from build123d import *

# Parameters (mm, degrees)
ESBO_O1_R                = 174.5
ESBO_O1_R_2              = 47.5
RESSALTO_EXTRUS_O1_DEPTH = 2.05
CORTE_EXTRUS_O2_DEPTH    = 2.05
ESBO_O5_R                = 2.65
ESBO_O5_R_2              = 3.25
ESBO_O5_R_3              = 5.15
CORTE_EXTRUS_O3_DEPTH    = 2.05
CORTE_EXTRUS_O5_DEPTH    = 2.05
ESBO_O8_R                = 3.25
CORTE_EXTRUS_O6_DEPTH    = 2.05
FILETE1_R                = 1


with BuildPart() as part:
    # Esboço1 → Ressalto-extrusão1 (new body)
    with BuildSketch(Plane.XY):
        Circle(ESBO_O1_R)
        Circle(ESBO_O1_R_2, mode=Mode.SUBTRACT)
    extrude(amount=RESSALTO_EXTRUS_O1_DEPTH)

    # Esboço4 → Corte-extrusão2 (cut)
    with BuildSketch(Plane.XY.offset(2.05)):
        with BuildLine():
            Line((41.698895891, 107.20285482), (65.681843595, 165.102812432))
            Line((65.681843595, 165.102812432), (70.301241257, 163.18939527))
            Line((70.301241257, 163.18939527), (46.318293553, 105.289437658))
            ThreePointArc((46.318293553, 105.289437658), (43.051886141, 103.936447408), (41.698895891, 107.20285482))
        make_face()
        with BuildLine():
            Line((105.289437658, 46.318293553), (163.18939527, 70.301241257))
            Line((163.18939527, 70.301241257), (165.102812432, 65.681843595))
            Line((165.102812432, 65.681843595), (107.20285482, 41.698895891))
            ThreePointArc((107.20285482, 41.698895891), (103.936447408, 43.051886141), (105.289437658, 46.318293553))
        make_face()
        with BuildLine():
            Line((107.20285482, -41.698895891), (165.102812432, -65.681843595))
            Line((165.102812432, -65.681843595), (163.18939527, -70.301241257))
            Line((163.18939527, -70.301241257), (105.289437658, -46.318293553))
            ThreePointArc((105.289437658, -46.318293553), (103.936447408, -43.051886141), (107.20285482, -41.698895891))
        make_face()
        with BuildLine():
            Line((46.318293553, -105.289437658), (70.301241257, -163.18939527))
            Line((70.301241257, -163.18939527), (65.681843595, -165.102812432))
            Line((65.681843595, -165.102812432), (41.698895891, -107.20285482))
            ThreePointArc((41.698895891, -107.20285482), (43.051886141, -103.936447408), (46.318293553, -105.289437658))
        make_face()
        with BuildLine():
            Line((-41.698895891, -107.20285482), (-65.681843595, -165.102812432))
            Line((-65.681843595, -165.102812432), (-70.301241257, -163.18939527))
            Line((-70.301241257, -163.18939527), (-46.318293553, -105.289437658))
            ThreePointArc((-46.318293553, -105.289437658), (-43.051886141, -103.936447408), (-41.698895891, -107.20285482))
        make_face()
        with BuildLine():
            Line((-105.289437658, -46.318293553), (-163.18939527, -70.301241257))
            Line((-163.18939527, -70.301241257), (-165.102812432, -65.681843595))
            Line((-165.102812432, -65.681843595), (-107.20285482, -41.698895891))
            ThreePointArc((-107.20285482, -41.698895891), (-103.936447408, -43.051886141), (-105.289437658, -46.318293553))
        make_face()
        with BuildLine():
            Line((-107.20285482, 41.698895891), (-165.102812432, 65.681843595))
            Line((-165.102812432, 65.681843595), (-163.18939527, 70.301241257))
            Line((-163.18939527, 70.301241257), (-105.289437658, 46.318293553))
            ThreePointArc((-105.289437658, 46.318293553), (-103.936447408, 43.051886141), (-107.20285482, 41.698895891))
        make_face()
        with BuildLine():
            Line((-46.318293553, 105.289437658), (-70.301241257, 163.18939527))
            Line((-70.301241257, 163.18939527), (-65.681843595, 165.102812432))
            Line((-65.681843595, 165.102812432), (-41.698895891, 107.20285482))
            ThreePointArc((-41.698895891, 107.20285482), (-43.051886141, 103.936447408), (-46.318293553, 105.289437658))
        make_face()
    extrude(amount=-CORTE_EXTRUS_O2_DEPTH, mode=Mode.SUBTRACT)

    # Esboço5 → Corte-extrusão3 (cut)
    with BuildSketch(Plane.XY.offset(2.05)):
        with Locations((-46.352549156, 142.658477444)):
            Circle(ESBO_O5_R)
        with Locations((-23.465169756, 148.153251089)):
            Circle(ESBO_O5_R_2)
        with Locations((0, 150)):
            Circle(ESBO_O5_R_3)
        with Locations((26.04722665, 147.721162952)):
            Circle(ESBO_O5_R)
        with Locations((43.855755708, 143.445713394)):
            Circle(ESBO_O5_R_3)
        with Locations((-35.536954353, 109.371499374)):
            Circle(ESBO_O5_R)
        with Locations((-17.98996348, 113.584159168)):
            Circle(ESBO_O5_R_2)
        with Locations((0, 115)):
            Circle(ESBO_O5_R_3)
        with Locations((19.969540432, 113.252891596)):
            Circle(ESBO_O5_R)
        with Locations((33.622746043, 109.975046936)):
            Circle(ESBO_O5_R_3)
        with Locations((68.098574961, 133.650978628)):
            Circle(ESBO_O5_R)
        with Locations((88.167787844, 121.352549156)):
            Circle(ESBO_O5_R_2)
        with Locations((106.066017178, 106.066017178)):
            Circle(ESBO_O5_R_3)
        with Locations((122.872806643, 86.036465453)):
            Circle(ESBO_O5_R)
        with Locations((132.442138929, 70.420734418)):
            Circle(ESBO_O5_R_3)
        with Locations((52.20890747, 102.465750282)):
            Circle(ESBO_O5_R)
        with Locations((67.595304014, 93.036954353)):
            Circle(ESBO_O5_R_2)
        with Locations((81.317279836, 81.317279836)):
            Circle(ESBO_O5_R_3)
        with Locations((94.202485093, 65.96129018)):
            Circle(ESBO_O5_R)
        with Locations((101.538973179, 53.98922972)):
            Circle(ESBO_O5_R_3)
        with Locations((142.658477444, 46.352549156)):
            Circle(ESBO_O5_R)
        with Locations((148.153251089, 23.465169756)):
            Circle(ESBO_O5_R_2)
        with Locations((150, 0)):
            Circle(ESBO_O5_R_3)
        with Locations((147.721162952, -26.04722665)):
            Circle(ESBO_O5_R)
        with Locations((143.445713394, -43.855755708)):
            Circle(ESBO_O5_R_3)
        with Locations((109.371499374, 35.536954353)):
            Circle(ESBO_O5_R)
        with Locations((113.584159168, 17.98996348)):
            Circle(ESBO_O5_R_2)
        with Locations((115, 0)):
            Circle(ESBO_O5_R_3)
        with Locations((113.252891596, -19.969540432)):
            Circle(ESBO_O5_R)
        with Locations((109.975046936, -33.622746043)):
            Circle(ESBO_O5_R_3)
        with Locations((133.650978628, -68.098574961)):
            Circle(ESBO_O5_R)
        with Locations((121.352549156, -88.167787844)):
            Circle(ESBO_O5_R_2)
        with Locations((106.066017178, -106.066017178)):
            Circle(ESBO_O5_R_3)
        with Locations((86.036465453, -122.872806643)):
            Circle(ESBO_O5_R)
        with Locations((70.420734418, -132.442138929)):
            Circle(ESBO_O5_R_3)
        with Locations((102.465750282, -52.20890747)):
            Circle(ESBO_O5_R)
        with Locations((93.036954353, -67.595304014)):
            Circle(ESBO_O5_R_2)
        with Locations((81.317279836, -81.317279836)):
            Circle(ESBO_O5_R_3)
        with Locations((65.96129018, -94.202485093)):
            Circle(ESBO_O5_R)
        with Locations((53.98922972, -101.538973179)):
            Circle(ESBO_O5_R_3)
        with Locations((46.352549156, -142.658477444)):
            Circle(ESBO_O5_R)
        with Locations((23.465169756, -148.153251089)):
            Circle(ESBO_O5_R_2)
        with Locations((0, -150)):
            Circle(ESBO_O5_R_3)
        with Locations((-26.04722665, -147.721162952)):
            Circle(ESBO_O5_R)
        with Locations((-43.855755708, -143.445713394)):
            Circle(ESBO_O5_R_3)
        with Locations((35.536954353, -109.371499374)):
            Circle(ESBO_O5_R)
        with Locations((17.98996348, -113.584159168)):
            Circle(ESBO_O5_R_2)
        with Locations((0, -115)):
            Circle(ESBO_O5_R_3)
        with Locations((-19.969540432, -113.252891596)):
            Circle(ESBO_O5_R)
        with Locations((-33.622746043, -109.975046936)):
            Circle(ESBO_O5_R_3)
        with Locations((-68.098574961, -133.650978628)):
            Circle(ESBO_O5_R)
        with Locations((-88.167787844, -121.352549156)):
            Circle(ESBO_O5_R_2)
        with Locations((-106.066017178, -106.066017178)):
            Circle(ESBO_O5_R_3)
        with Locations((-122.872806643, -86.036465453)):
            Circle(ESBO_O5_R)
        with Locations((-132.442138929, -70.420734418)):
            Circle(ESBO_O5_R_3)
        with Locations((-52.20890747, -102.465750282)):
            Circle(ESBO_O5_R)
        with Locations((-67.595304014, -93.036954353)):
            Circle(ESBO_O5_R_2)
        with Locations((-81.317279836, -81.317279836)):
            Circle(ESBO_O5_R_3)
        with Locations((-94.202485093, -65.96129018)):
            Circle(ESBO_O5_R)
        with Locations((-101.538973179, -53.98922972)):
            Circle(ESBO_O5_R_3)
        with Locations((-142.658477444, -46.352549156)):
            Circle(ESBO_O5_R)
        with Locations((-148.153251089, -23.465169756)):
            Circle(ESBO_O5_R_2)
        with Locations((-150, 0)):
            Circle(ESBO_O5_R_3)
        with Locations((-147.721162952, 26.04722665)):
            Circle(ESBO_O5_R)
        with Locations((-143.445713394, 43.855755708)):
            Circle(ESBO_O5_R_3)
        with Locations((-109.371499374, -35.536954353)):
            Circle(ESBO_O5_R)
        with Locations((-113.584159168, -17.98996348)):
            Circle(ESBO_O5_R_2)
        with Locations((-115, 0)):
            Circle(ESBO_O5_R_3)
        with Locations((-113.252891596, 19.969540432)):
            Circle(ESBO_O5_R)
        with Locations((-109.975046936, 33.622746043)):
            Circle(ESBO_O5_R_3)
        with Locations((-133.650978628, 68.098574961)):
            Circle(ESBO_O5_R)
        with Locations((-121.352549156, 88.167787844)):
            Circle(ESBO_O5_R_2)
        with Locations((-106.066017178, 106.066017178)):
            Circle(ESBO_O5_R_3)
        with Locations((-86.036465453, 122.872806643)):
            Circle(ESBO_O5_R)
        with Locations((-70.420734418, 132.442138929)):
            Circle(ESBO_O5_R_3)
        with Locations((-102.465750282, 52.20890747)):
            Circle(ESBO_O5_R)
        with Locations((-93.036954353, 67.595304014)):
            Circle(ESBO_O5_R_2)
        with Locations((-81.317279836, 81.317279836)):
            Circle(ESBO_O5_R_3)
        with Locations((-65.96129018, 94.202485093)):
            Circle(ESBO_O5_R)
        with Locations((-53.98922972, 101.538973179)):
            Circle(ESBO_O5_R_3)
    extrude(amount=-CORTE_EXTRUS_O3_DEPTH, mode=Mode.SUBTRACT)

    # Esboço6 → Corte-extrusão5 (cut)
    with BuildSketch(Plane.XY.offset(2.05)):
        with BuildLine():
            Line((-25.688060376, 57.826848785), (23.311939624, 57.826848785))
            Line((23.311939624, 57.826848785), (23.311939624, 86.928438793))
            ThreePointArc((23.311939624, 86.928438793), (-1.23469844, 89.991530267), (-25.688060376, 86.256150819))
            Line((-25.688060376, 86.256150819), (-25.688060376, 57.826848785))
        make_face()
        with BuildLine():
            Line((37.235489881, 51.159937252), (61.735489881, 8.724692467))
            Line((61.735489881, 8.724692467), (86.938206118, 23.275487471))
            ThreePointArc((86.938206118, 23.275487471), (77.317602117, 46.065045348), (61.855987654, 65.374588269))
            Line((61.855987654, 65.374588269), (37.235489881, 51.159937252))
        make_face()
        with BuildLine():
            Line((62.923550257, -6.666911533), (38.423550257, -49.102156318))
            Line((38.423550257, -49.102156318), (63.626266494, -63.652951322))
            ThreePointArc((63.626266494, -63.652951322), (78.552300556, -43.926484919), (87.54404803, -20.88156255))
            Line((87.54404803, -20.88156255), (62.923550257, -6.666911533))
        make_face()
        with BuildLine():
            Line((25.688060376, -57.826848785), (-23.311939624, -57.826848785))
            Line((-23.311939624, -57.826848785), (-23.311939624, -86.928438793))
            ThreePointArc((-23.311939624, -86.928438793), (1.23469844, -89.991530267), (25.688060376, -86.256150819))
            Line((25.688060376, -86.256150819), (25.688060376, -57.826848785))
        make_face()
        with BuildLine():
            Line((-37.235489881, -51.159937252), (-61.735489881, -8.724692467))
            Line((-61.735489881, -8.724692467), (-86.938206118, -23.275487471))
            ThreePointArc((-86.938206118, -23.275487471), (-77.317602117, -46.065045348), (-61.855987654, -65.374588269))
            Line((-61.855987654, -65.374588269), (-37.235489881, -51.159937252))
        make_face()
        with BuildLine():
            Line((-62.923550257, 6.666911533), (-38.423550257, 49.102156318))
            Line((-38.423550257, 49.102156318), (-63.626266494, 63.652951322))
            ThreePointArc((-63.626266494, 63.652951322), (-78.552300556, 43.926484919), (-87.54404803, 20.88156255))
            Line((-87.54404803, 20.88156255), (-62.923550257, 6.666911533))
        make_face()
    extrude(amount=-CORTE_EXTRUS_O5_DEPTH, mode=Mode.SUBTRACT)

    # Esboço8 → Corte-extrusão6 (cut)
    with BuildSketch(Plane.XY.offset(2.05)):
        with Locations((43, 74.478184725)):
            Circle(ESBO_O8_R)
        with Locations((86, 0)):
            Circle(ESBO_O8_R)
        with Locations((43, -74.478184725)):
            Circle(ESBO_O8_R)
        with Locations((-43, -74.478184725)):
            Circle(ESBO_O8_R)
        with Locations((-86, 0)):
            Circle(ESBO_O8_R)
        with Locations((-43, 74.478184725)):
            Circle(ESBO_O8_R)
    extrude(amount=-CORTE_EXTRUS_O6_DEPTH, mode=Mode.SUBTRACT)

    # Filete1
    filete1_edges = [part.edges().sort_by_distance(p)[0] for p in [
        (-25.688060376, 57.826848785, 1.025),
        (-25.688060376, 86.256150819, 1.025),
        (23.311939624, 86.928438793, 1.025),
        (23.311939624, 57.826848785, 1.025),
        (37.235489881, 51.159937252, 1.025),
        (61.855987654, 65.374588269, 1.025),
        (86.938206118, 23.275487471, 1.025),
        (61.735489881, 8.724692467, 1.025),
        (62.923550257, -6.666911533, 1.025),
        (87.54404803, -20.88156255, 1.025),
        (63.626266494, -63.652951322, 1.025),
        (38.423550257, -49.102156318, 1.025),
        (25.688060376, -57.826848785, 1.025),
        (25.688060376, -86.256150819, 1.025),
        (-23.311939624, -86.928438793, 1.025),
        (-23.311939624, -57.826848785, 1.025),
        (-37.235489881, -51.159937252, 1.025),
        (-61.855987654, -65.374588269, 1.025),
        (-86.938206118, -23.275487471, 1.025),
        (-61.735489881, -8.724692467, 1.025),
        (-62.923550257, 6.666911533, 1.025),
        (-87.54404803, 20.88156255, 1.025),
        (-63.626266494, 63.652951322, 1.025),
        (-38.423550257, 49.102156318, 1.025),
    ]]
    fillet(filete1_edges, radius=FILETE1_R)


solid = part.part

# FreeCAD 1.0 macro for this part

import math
import FreeCAD as App
import Part
import Sketcher
Q = App.Units.Quantity


def edges_at(feature, points):
    """Names of the edges that pass closest to the given points."""
    edges = feature.Shape.Edges
    near = lambda p: min(range(len(edges)), key=lambda i: edges[i].distToShape(Part.Vertex(*p))[0])
    return sorted({f"Edge{near(p) + 1}" for p in points})

doc = App.newDocument("Part")
body = doc.addObject("PartDesign::Body", "Body")

sketch1 = body.newObject("Sketcher::SketchObject", "Sketch")
sketch1.AttachmentSupport = (doc.getObject("XY_Plane"), [""])
sketch1.MapMode = "FlatFace"
sketch1.addGeometry(Part.Circle(App.Vector(0, 0, 0), App.Vector(0, 0, 1), 174), False)
sketch1.addGeometry(Part.Circle(App.Vector(0, 0, 0), App.Vector(0, 0, 1), 48), False)
sketch1.addConstraint(Sketcher.Constraint("Coincident", 0, 3, -1, 1))
sketch1.addConstraint(Sketcher.Constraint("Coincident", 1, 3, -1, 1))
sketch1.addConstraint(Sketcher.Constraint("Diameter", 0, 349.0))
sketch1.addConstraint(Sketcher.Constraint("Diameter", 1, 95.0))
pad1 = body.newObject("PartDesign::Pad", "Pad")
pad1.Profile = sketch1
pad1.Length = 2.05

sketch2 = body.newObject("Sketcher::SketchObject", "Sketch001")
sketch2.AttachmentSupport = (doc.getObject("XY_Plane"), [""])
sketch2.MapMode = "FlatFace"
sketch2.AttachmentOffset = App.Placement(App.Vector(0, 0, 2.05), App.Rotation())
sketch2.addGeometry(Part.LineSegment(App.Vector(65.7, 165.1, 0), App.Vector(41.7, 107.2, 0)), False)
sketch2.addGeometry(Part.ArcOfCircle(Part.Circle(App.Vector(44, 106.2, 0), App.Vector(0, 0, 1), 2.5), math.radians(157), math.radians(337)), False)
sketch2.addGeometry(Part.LineSegment(App.Vector(46.3, 105.3, 0), App.Vector(70.3, 163.2, 0)), False)
sketch2.addGeometry(Part.LineSegment(App.Vector(70.3, 163.2, 0), App.Vector(65.7, 165.1, 0)), False)
sketch2.addGeometry(Part.LineSegment(App.Vector(163.2, 70.3, 0), App.Vector(105.3, 46.3, 0)), False)
sketch2.addGeometry(Part.ArcOfCircle(Part.Circle(App.Vector(106.2, 44, 0), App.Vector(0, 0, 1), 2.5), math.radians(113), math.radians(293)), False)
sketch2.addGeometry(Part.LineSegment(App.Vector(107.2, 41.7, 0), App.Vector(165.1, 65.7, 0)), False)
sketch2.addGeometry(Part.LineSegment(App.Vector(165.1, 65.7, 0), App.Vector(163.2, 70.3, 0)), False)
sketch2.addGeometry(Part.LineSegment(App.Vector(165.1, -65.7, 0), App.Vector(107.2, -41.7, 0)), False)
sketch2.addGeometry(Part.ArcOfCircle(Part.Circle(App.Vector(106.2, -44, 0), App.Vector(0, 0, 1), 2.5), math.radians(67), math.radians(247)), False)
sketch2.addGeometry(Part.LineSegment(App.Vector(105.3, -46.3, 0), App.Vector(163.2, -70.3, 0)), False)
sketch2.addGeometry(Part.LineSegment(App.Vector(163.2, -70.3, 0), App.Vector(165.1, -65.7, 0)), False)
sketch2.addGeometry(Part.LineSegment(App.Vector(70.3, -163.2, 0), App.Vector(46.3, -105.3, 0)), False)
sketch2.addGeometry(Part.ArcOfCircle(Part.Circle(App.Vector(44, -106.2, 0), App.Vector(0, 0, 1), 2.5), math.radians(23), math.radians(203)), False)
sketch2.addGeometry(Part.LineSegment(App.Vector(41.7, -107.2, 0), App.Vector(65.7, -165.1, 0)), False)
sketch2.addGeometry(Part.LineSegment(App.Vector(65.7, -165.1, 0), App.Vector(70.3, -163.2, 0)), False)
sketch2.addGeometry(Part.LineSegment(App.Vector(-65.7, -165.1, 0), App.Vector(-41.7, -107.2, 0)), False)
sketch2.addGeometry(Part.ArcOfCircle(Part.Circle(App.Vector(-44, -106.2, 0), App.Vector(0, 0, 1), 2.5), math.radians(-23), math.radians(157)), False)
sketch2.addGeometry(Part.LineSegment(App.Vector(-46.3, -105.3, 0), App.Vector(-70.3, -163.2, 0)), False)
sketch2.addGeometry(Part.LineSegment(App.Vector(-70.3, -163.2, 0), App.Vector(-65.7, -165.1, 0)), False)
sketch2.addGeometry(Part.LineSegment(App.Vector(-163.2, -70.3, 0), App.Vector(-105.3, -46.3, 0)), False)
sketch2.addGeometry(Part.ArcOfCircle(Part.Circle(App.Vector(-106.2, -44, 0), App.Vector(0, 0, 1), 2.5), math.radians(-67), math.radians(113)), False)
sketch2.addGeometry(Part.LineSegment(App.Vector(-107.2, -41.7, 0), App.Vector(-165.1, -65.7, 0)), False)
sketch2.addGeometry(Part.LineSegment(App.Vector(-165.1, -65.7, 0), App.Vector(-163.2, -70.3, 0)), False)
sketch2.addGeometry(Part.LineSegment(App.Vector(-165.1, 65.7, 0), App.Vector(-107.2, 41.7, 0)), False)
sketch2.addGeometry(Part.ArcOfCircle(Part.Circle(App.Vector(-106.2, 44, 0), App.Vector(0, 0, 1), 2.5), math.radians(-113), math.radians(67)), False)
sketch2.addGeometry(Part.LineSegment(App.Vector(-105.3, 46.3, 0), App.Vector(-163.2, 70.3, 0)), False)
sketch2.addGeometry(Part.LineSegment(App.Vector(-163.2, 70.3, 0), App.Vector(-165.1, 65.7, 0)), False)
sketch2.addGeometry(Part.LineSegment(App.Vector(-70.3, 163.2, 0), App.Vector(-46.3, 105.3, 0)), False)
sketch2.addGeometry(Part.ArcOfCircle(Part.Circle(App.Vector(-44, 106.2, 0), App.Vector(0, 0, 1), 2.5), math.radians(-157), math.radians(23)), False)
sketch2.addGeometry(Part.LineSegment(App.Vector(-41.7, 107.2, 0), App.Vector(-65.7, 165.1, 0)), False)
sketch2.addGeometry(Part.LineSegment(App.Vector(-65.7, 165.1, 0), App.Vector(-70.3, 163.2, 0)), False)
sketch2.addConstraint(Sketcher.Constraint("Tangent", 0, 2, 1, 1))
sketch2.addConstraint(Sketcher.Constraint("Tangent", 1, 2, 2, 1))
sketch2.addConstraint(Sketcher.Constraint("Coincident", 2, 2, 3, 1))
sketch2.addConstraint(Sketcher.Constraint("Coincident", 3, 2, 0, 1))
sketch2.addConstraint(Sketcher.Constraint("Tangent", 4, 2, 5, 1))
sketch2.addConstraint(Sketcher.Constraint("Tangent", 5, 2, 6, 1))
sketch2.addConstraint(Sketcher.Constraint("Coincident", 6, 2, 7, 1))
sketch2.addConstraint(Sketcher.Constraint("Coincident", 7, 2, 4, 1))
sketch2.addConstraint(Sketcher.Constraint("Tangent", 8, 2, 9, 1))
sketch2.addConstraint(Sketcher.Constraint("Tangent", 9, 2, 10, 1))
sketch2.addConstraint(Sketcher.Constraint("Coincident", 10, 2, 11, 1))
sketch2.addConstraint(Sketcher.Constraint("Coincident", 11, 2, 8, 1))
sketch2.addConstraint(Sketcher.Constraint("Tangent", 12, 2, 13, 1))
sketch2.addConstraint(Sketcher.Constraint("Tangent", 13, 2, 14, 1))
sketch2.addConstraint(Sketcher.Constraint("Coincident", 14, 2, 15, 1))
sketch2.addConstraint(Sketcher.Constraint("Coincident", 15, 2, 12, 1))
sketch2.addConstraint(Sketcher.Constraint("Tangent", 16, 2, 17, 1))
sketch2.addConstraint(Sketcher.Constraint("Tangent", 17, 2, 18, 1))
sketch2.addConstraint(Sketcher.Constraint("Coincident", 18, 2, 19, 1))
sketch2.addConstraint(Sketcher.Constraint("Coincident", 19, 2, 16, 1))
sketch2.addConstraint(Sketcher.Constraint("Tangent", 20, 2, 21, 1))
sketch2.addConstraint(Sketcher.Constraint("Tangent", 21, 2, 22, 1))
sketch2.addConstraint(Sketcher.Constraint("Coincident", 22, 2, 23, 1))
sketch2.addConstraint(Sketcher.Constraint("Coincident", 23, 2, 20, 1))
sketch2.addConstraint(Sketcher.Constraint("Tangent", 24, 2, 25, 1))
sketch2.addConstraint(Sketcher.Constraint("Tangent", 25, 2, 26, 1))
sketch2.addConstraint(Sketcher.Constraint("Coincident", 26, 2, 27, 1))
sketch2.addConstraint(Sketcher.Constraint("Coincident", 27, 2, 24, 1))
sketch2.addConstraint(Sketcher.Constraint("Tangent", 28, 2, 29, 1))
sketch2.addConstraint(Sketcher.Constraint("Tangent", 29, 2, 30, 1))
sketch2.addConstraint(Sketcher.Constraint("Coincident", 30, 2, 31, 1))
sketch2.addConstraint(Sketcher.Constraint("Coincident", 31, 2, 28, 1))
sketch2.addConstraint(Sketcher.Constraint("Equal", 1, 5))
sketch2.addConstraint(Sketcher.Constraint("Equal", 5, 9))
sketch2.addConstraint(Sketcher.Constraint("Equal", 9, 13))
sketch2.addConstraint(Sketcher.Constraint("Equal", 13, 17))
sketch2.addConstraint(Sketcher.Constraint("Equal", 17, 21))
sketch2.addConstraint(Sketcher.Constraint("Equal", 21, 25))
sketch2.addConstraint(Sketcher.Constraint("Equal", 25, 29))
sketch2.addConstraint(Sketcher.Constraint("Symmetric", 1, 3, 17, 3, -1, 1))
sketch2.addConstraint(Sketcher.Constraint("Symmetric", 5, 3, 21, 3, -1, 1))
sketch2.addConstraint(Sketcher.Constraint("Symmetric", 9, 3, 25, 3, -1, 1))
sketch2.addConstraint(Sketcher.Constraint("Symmetric", 13, 3, 29, 3, -1, 1))
sketch2.addConstraint(Sketcher.Constraint("Symmetric", 2, 2, 18, 2, -1, 1))
sketch2.addConstraint(Sketcher.Constraint("Symmetric", 3, 2, 19, 2, -1, 1))
sketch2.addConstraint(Sketcher.Constraint("Symmetric", 6, 2, 22, 2, -1, 1))
sketch2.addConstraint(Sketcher.Constraint("Symmetric", 7, 2, 23, 2, -1, 1))
sketch2.addConstraint(Sketcher.Constraint("Symmetric", 10, 2, 26, 2, -1, 1))
sketch2.addConstraint(Sketcher.Constraint("Symmetric", 11, 2, 27, 2, -1, 1))
sketch2.addConstraint(Sketcher.Constraint("Symmetric", 14, 2, 30, 2, -1, 1))
sketch2.addConstraint(Sketcher.Constraint("Symmetric", 15, 2, 31, 2, -1, 1))
sketch2.addConstraint(Sketcher.Constraint("Symmetric", 13, 3, 17, 3, -2))
sketch2.addConstraint(Sketcher.Constraint("Symmetric", 9, 3, 21, 3, -2))
sketch2.addConstraint(Sketcher.Constraint("Symmetric", 15, 2, 18, 2, -2))
sketch2.addConstraint(Sketcher.Constraint("Symmetric", 14, 2, 19, 2, -2))
sketch2.addConstraint(Sketcher.Constraint("Symmetric", 11, 2, 22, 2, -2))
sketch2.addConstraint(Sketcher.Constraint("Symmetric", 10, 2, 23, 2, -2))
sketch2.addConstraint(Sketcher.Constraint("Parallel", 0, 2))
sketch2.addConstraint(Sketcher.Constraint("Perpendicular", 2, 3))
sketch2.addConstraint(Sketcher.Constraint("Parallel", 4, 6))
sketch2.addConstraint(Sketcher.Constraint("Perpendicular", 6, 7))
sketch2.addConstraint(Sketcher.Constraint("Parallel", 3, 8))
sketch2.addConstraint(Sketcher.Constraint("Equal", 2, 4))
sketch2.addConstraint(Sketcher.Constraint("Radius", 1, 2.5))
sketch2.addConstraint(Sketcher.Constraint("Angle", 0, Q("-112.5 deg")))
sketch2.addConstraint(Sketcher.Constraint("DistanceY", 5, 3, 2, 2, 119.180801))
sketch2.addConstraint(Sketcher.Constraint("DistanceX", 1, 2, 7, 2, 116.871102))
sketch2.addConstraint(Sketcher.Constraint("DistanceX", -1, 1, 2, 2, 70.301241))
sketch2.addConstraint(Sketcher.Constraint("DistanceY", -1, 1, 7, 2, 70.301241))
sketch2.addConstraint(Sketcher.Constraint("DistanceX", 1, 3, 5, 3, 62.237552))
pocket1 = body.newObject("PartDesign::Pocket", "Pocket")
pocket1.Profile = sketch2
pocket1.Length = 2.05

sketch3 = body.newObject("Sketcher::SketchObject", "Sketch002")
sketch3.AttachmentSupport = (doc.getObject("XY_Plane"), [""])
sketch3.MapMode = "FlatFace"
sketch3.AttachmentOffset = App.Placement(App.Vector(0, 0, 2.05), App.Rotation())
sketch3.addGeometry(Part.Circle(App.Vector(-46.4, 142.7, 0), App.Vector(0, 0, 1), 2.6), False)
sketch3.addGeometry(Part.Circle(App.Vector(-23.5, 148.2, 0), App.Vector(0, 0, 1), 3.2), False)
sketch3.addGeometry(Part.Circle(App.Vector(0, 150, 0), App.Vector(0, 0, 1), 5.2), False)
sketch3.addGeometry(Part.Circle(App.Vector(26, 147.7, 0), App.Vector(0, 0, 1), 2.6), False)
sketch3.addGeometry(Part.Circle(App.Vector(43.9, 143.4, 0), App.Vector(0, 0, 1), 5.2), False)
sketch3.addGeometry(Part.Circle(App.Vector(-35.5, 109.4, 0), App.Vector(0, 0, 1), 2.6), False)
sketch3.addGeometry(Part.Circle(App.Vector(-18, 113.6, 0), App.Vector(0, 0, 1), 3.2), False)
sketch3.addGeometry(Part.Circle(App.Vector(0, 115, 0), App.Vector(0, 0, 1), 5.2), False)
sketch3.addGeometry(Part.Circle(App.Vector(20, 113.3, 0), App.Vector(0, 0, 1), 2.6), False)
sketch3.addGeometry(Part.Circle(App.Vector(33.6, 110, 0), App.Vector(0, 0, 1), 5.2), False)
sketch3.addGeometry(Part.Circle(App.Vector(68.1, 133.7, 0), App.Vector(0, 0, 1), 2.6), False)
sketch3.addGeometry(Part.Circle(App.Vector(88.2, 121.4, 0), App.Vector(0, 0, 1), 3.2), False)
sketch3.addGeometry(Part.Circle(App.Vector(106.1, 106.1, 0), App.Vector(0, 0, 1), 5.2), False)
sketch3.addGeometry(Part.Circle(App.Vector(122.9, 86, 0), App.Vector(0, 0, 1), 2.6), False)
sketch3.addGeometry(Part.Circle(App.Vector(132.4, 70.4, 0), App.Vector(0, 0, 1), 5.2), False)
sketch3.addGeometry(Part.Circle(App.Vector(52.2, 102.5, 0), App.Vector(0, 0, 1), 2.6), False)
sketch3.addGeometry(Part.Circle(App.Vector(67.6, 93, 0), App.Vector(0, 0, 1), 3.2), False)
sketch3.addGeometry(Part.Circle(App.Vector(81.3, 81.3, 0), App.Vector(0, 0, 1), 5.2), False)
sketch3.addGeometry(Part.Circle(App.Vector(94.2, 66, 0), App.Vector(0, 0, 1), 2.6), False)
sketch3.addGeometry(Part.Circle(App.Vector(101.5, 54, 0), App.Vector(0, 0, 1), 5.2), False)
sketch3.addGeometry(Part.Circle(App.Vector(142.7, 46.4, 0), App.Vector(0, 0, 1), 2.6), False)
sketch3.addGeometry(Part.Circle(App.Vector(148.2, 23.5, 0), App.Vector(0, 0, 1), 3.2), False)
sketch3.addGeometry(Part.Circle(App.Vector(150, 0, 0), App.Vector(0, 0, 1), 5.2), False)
sketch3.addGeometry(Part.Circle(App.Vector(147.7, -26, 0), App.Vector(0, 0, 1), 2.6), False)
sketch3.addGeometry(Part.Circle(App.Vector(143.4, -43.9, 0), App.Vector(0, 0, 1), 5.2), False)
sketch3.addGeometry(Part.Circle(App.Vector(109.4, 35.5, 0), App.Vector(0, 0, 1), 2.6), False)
sketch3.addGeometry(Part.Circle(App.Vector(113.6, 18, 0), App.Vector(0, 0, 1), 3.2), False)
sketch3.addGeometry(Part.Circle(App.Vector(115, 0, 0), App.Vector(0, 0, 1), 5.2), False)
sketch3.addGeometry(Part.Circle(App.Vector(113.3, -20, 0), App.Vector(0, 0, 1), 2.6), False)
sketch3.addGeometry(Part.Circle(App.Vector(110, -33.6, 0), App.Vector(0, 0, 1), 5.2), False)
sketch3.addGeometry(Part.Circle(App.Vector(133.7, -68.1, 0), App.Vector(0, 0, 1), 2.6), False)
sketch3.addGeometry(Part.Circle(App.Vector(121.4, -88.2, 0), App.Vector(0, 0, 1), 3.2), False)
sketch3.addGeometry(Part.Circle(App.Vector(106.1, -106.1, 0), App.Vector(0, 0, 1), 5.2), False)
sketch3.addGeometry(Part.Circle(App.Vector(86, -122.9, 0), App.Vector(0, 0, 1), 2.6), False)
sketch3.addGeometry(Part.Circle(App.Vector(70.4, -132.4, 0), App.Vector(0, 0, 1), 5.2), False)
sketch3.addGeometry(Part.Circle(App.Vector(102.5, -52.2, 0), App.Vector(0, 0, 1), 2.6), False)
sketch3.addGeometry(Part.Circle(App.Vector(93, -67.6, 0), App.Vector(0, 0, 1), 3.2), False)
sketch3.addGeometry(Part.Circle(App.Vector(81.3, -81.3, 0), App.Vector(0, 0, 1), 5.2), False)
sketch3.addGeometry(Part.Circle(App.Vector(66, -94.2, 0), App.Vector(0, 0, 1), 2.6), False)
sketch3.addGeometry(Part.Circle(App.Vector(54, -101.5, 0), App.Vector(0, 0, 1), 5.2), False)
sketch3.addGeometry(Part.Circle(App.Vector(46.4, -142.7, 0), App.Vector(0, 0, 1), 2.6), False)
sketch3.addGeometry(Part.Circle(App.Vector(23.5, -148.2, 0), App.Vector(0, 0, 1), 3.2), False)
sketch3.addGeometry(Part.Circle(App.Vector(0, -150, 0), App.Vector(0, 0, 1), 5.2), False)
sketch3.addGeometry(Part.Circle(App.Vector(-26, -147.7, 0), App.Vector(0, 0, 1), 2.6), False)
sketch3.addGeometry(Part.Circle(App.Vector(-43.9, -143.4, 0), App.Vector(0, 0, 1), 5.2), False)
sketch3.addGeometry(Part.Circle(App.Vector(35.5, -109.4, 0), App.Vector(0, 0, 1), 2.6), False)
sketch3.addGeometry(Part.Circle(App.Vector(18, -113.6, 0), App.Vector(0, 0, 1), 3.2), False)
sketch3.addGeometry(Part.Circle(App.Vector(0, -115, 0), App.Vector(0, 0, 1), 5.2), False)
sketch3.addGeometry(Part.Circle(App.Vector(-20, -113.3, 0), App.Vector(0, 0, 1), 2.6), False)
sketch3.addGeometry(Part.Circle(App.Vector(-33.6, -110, 0), App.Vector(0, 0, 1), 5.2), False)
sketch3.addGeometry(Part.Circle(App.Vector(-68.1, -133.7, 0), App.Vector(0, 0, 1), 2.6), False)
sketch3.addGeometry(Part.Circle(App.Vector(-88.2, -121.4, 0), App.Vector(0, 0, 1), 3.2), False)
sketch3.addGeometry(Part.Circle(App.Vector(-106.1, -106.1, 0), App.Vector(0, 0, 1), 5.2), False)
sketch3.addGeometry(Part.Circle(App.Vector(-122.9, -86, 0), App.Vector(0, 0, 1), 2.6), False)
sketch3.addGeometry(Part.Circle(App.Vector(-132.4, -70.4, 0), App.Vector(0, 0, 1), 5.2), False)
sketch3.addGeometry(Part.Circle(App.Vector(-52.2, -102.5, 0), App.Vector(0, 0, 1), 2.6), False)
sketch3.addGeometry(Part.Circle(App.Vector(-67.6, -93, 0), App.Vector(0, 0, 1), 3.2), False)
sketch3.addGeometry(Part.Circle(App.Vector(-81.3, -81.3, 0), App.Vector(0, 0, 1), 5.2), False)
sketch3.addGeometry(Part.Circle(App.Vector(-94.2, -66, 0), App.Vector(0, 0, 1), 2.6), False)
sketch3.addGeometry(Part.Circle(App.Vector(-101.5, -54, 0), App.Vector(0, 0, 1), 5.2), False)
sketch3.addGeometry(Part.Circle(App.Vector(-142.7, -46.4, 0), App.Vector(0, 0, 1), 2.6), False)
sketch3.addGeometry(Part.Circle(App.Vector(-148.2, -23.5, 0), App.Vector(0, 0, 1), 3.2), False)
sketch3.addGeometry(Part.Circle(App.Vector(-150, 0, 0), App.Vector(0, 0, 1), 5.2), False)
sketch3.addGeometry(Part.Circle(App.Vector(-147.7, 26, 0), App.Vector(0, 0, 1), 2.6), False)
sketch3.addGeometry(Part.Circle(App.Vector(-143.4, 43.9, 0), App.Vector(0, 0, 1), 5.2), False)
sketch3.addGeometry(Part.Circle(App.Vector(-109.4, -35.5, 0), App.Vector(0, 0, 1), 2.6), False)
sketch3.addGeometry(Part.Circle(App.Vector(-113.6, -18, 0), App.Vector(0, 0, 1), 3.2), False)
sketch3.addGeometry(Part.Circle(App.Vector(-115, 0, 0), App.Vector(0, 0, 1), 5.2), False)
sketch3.addGeometry(Part.Circle(App.Vector(-113.3, 20, 0), App.Vector(0, 0, 1), 2.6), False)
sketch3.addGeometry(Part.Circle(App.Vector(-110, 33.6, 0), App.Vector(0, 0, 1), 5.2), False)
sketch3.addGeometry(Part.Circle(App.Vector(-133.7, 68.1, 0), App.Vector(0, 0, 1), 2.6), False)
sketch3.addGeometry(Part.Circle(App.Vector(-121.4, 88.2, 0), App.Vector(0, 0, 1), 3.2), False)
sketch3.addGeometry(Part.Circle(App.Vector(-106.1, 106.1, 0), App.Vector(0, 0, 1), 5.2), False)
sketch3.addGeometry(Part.Circle(App.Vector(-86, 122.9, 0), App.Vector(0, 0, 1), 2.6), False)
sketch3.addGeometry(Part.Circle(App.Vector(-70.4, 132.4, 0), App.Vector(0, 0, 1), 5.2), False)
sketch3.addGeometry(Part.Circle(App.Vector(-102.5, 52.2, 0), App.Vector(0, 0, 1), 2.6), False)
sketch3.addGeometry(Part.Circle(App.Vector(-93, 67.6, 0), App.Vector(0, 0, 1), 3.2), False)
sketch3.addGeometry(Part.Circle(App.Vector(-81.3, 81.3, 0), App.Vector(0, 0, 1), 5.2), False)
sketch3.addGeometry(Part.Circle(App.Vector(-66, 94.2, 0), App.Vector(0, 0, 1), 2.6), False)
sketch3.addGeometry(Part.Circle(App.Vector(-54, 101.5, 0), App.Vector(0, 0, 1), 5.2), False)
sketch3.addConstraint(Sketcher.Constraint("Equal", 0, 3))
sketch3.addConstraint(Sketcher.Constraint("Equal", 2, 4))
sketch3.addConstraint(Sketcher.Constraint("Equal", 3, 5))
sketch3.addConstraint(Sketcher.Constraint("Equal", 1, 6))
sketch3.addConstraint(Sketcher.Constraint("Equal", 4, 7))
sketch3.addConstraint(Sketcher.Constraint("Equal", 5, 8))
sketch3.addConstraint(Sketcher.Constraint("Equal", 7, 9))
sketch3.addConstraint(Sketcher.Constraint("Equal", 8, 10))
sketch3.addConstraint(Sketcher.Constraint("Equal", 6, 11))
sketch3.addConstraint(Sketcher.Constraint("Equal", 9, 12))
sketch3.addConstraint(Sketcher.Constraint("Equal", 10, 13))
sketch3.addConstraint(Sketcher.Constraint("Equal", 12, 14))
sketch3.addConstraint(Sketcher.Constraint("Equal", 13, 15))
sketch3.addConstraint(Sketcher.Constraint("Equal", 11, 16))
sketch3.addConstraint(Sketcher.Constraint("Equal", 14, 17))
sketch3.addConstraint(Sketcher.Constraint("Equal", 15, 18))
sketch3.addConstraint(Sketcher.Constraint("Equal", 17, 19))
sketch3.addConstraint(Sketcher.Constraint("Equal", 18, 20))
sketch3.addConstraint(Sketcher.Constraint("Equal", 16, 21))
sketch3.addConstraint(Sketcher.Constraint("Equal", 19, 22))
sketch3.addConstraint(Sketcher.Constraint("Equal", 20, 23))
sketch3.addConstraint(Sketcher.Constraint("Equal", 22, 24))
sketch3.addConstraint(Sketcher.Constraint("Equal", 23, 25))
sketch3.addConstraint(Sketcher.Constraint("Equal", 21, 26))
sketch3.addConstraint(Sketcher.Constraint("Equal", 24, 27))
sketch3.addConstraint(Sketcher.Constraint("Equal", 25, 28))
sketch3.addConstraint(Sketcher.Constraint("Equal", 27, 29))
sketch3.addConstraint(Sketcher.Constraint("Equal", 28, 30))
sketch3.addConstraint(Sketcher.Constraint("Equal", 26, 31))
sketch3.addConstraint(Sketcher.Constraint("Equal", 29, 32))
sketch3.addConstraint(Sketcher.Constraint("Equal", 30, 33))
sketch3.addConstraint(Sketcher.Constraint("Equal", 32, 34))
sketch3.addConstraint(Sketcher.Constraint("Equal", 33, 35))
sketch3.addConstraint(Sketcher.Constraint("Equal", 31, 36))
sketch3.addConstraint(Sketcher.Constraint("Equal", 34, 37))
sketch3.addConstraint(Sketcher.Constraint("Equal", 35, 38))
sketch3.addConstraint(Sketcher.Constraint("Equal", 37, 39))
sketch3.addConstraint(Sketcher.Constraint("Equal", 38, 40))
sketch3.addConstraint(Sketcher.Constraint("Equal", 36, 41))
sketch3.addConstraint(Sketcher.Constraint("Equal", 39, 42))
sketch3.addConstraint(Sketcher.Constraint("Equal", 40, 43))
sketch3.addConstraint(Sketcher.Constraint("Equal", 42, 44))
sketch3.addConstraint(Sketcher.Constraint("Equal", 43, 45))
sketch3.addConstraint(Sketcher.Constraint("Equal", 41, 46))
sketch3.addConstraint(Sketcher.Constraint("Equal", 44, 47))
sketch3.addConstraint(Sketcher.Constraint("Equal", 45, 48))
sketch3.addConstraint(Sketcher.Constraint("Equal", 47, 49))
sketch3.addConstraint(Sketcher.Constraint("Equal", 48, 50))
sketch3.addConstraint(Sketcher.Constraint("Equal", 46, 51))
sketch3.addConstraint(Sketcher.Constraint("Equal", 49, 52))
sketch3.addConstraint(Sketcher.Constraint("Equal", 50, 53))
sketch3.addConstraint(Sketcher.Constraint("Equal", 52, 54))
sketch3.addConstraint(Sketcher.Constraint("Equal", 53, 55))
sketch3.addConstraint(Sketcher.Constraint("Equal", 51, 56))
sketch3.addConstraint(Sketcher.Constraint("Equal", 54, 57))
sketch3.addConstraint(Sketcher.Constraint("Equal", 55, 58))
sketch3.addConstraint(Sketcher.Constraint("Equal", 57, 59))
sketch3.addConstraint(Sketcher.Constraint("Equal", 58, 60))
sketch3.addConstraint(Sketcher.Constraint("Equal", 56, 61))
sketch3.addConstraint(Sketcher.Constraint("Equal", 59, 62))
sketch3.addConstraint(Sketcher.Constraint("Equal", 60, 63))
sketch3.addConstraint(Sketcher.Constraint("Equal", 62, 64))
sketch3.addConstraint(Sketcher.Constraint("Equal", 63, 65))
sketch3.addConstraint(Sketcher.Constraint("Equal", 61, 66))
sketch3.addConstraint(Sketcher.Constraint("Equal", 64, 67))
sketch3.addConstraint(Sketcher.Constraint("Equal", 65, 68))
sketch3.addConstraint(Sketcher.Constraint("Equal", 67, 69))
sketch3.addConstraint(Sketcher.Constraint("Equal", 68, 70))
sketch3.addConstraint(Sketcher.Constraint("Equal", 66, 71))
sketch3.addConstraint(Sketcher.Constraint("Equal", 69, 72))
sketch3.addConstraint(Sketcher.Constraint("Equal", 70, 73))
sketch3.addConstraint(Sketcher.Constraint("Equal", 72, 74))
sketch3.addConstraint(Sketcher.Constraint("Equal", 73, 75))
sketch3.addConstraint(Sketcher.Constraint("Equal", 71, 76))
sketch3.addConstraint(Sketcher.Constraint("Equal", 74, 77))
sketch3.addConstraint(Sketcher.Constraint("Equal", 75, 78))
sketch3.addConstraint(Sketcher.Constraint("Equal", 77, 79))
sketch3.addConstraint(Sketcher.Constraint("Symmetric", 0, 3, 40, 3, -1, 1))
sketch3.addConstraint(Sketcher.Constraint("Symmetric", 1, 3, 41, 3, -1, 1))
sketch3.addConstraint(Sketcher.Constraint("Symmetric", 2, 3, 42, 3, -1, 1))
sketch3.addConstraint(Sketcher.Constraint("Symmetric", 3, 3, 43, 3, -1, 1))
sketch3.addConstraint(Sketcher.Constraint("Symmetric", 4, 3, 44, 3, -1, 1))
sketch3.addConstraint(Sketcher.Constraint("Symmetric", 5, 3, 45, 3, -1, 1))
sketch3.addConstraint(Sketcher.Constraint("Symmetric", 6, 3, 46, 3, -1, 1))
sketch3.addConstraint(Sketcher.Constraint("Symmetric", 7, 3, 47, 3, -1, 1))
sketch3.addConstraint(Sketcher.Constraint("Symmetric", 8, 3, 48, 3, -1, 1))
sketch3.addConstraint(Sketcher.Constraint("Symmetric", 9, 3, 49, 3, -1, 1))
sketch3.addConstraint(Sketcher.Constraint("Symmetric", 10, 3, 50, 3, -1, 1))
sketch3.addConstraint(Sketcher.Constraint("Symmetric", 11, 3, 51, 3, -1, 1))
sketch3.addConstraint(Sketcher.Constraint("Symmetric", 12, 3, 52, 3, -1, 1))
sketch3.addConstraint(Sketcher.Constraint("Symmetric", 13, 3, 53, 3, -1, 1))
sketch3.addConstraint(Sketcher.Constraint("Symmetric", 14, 3, 54, 3, -1, 1))
sketch3.addConstraint(Sketcher.Constraint("Symmetric", 15, 3, 55, 3, -1, 1))
sketch3.addConstraint(Sketcher.Constraint("Symmetric", 16, 3, 56, 3, -1, 1))
sketch3.addConstraint(Sketcher.Constraint("Symmetric", 17, 3, 57, 3, -1, 1))
sketch3.addConstraint(Sketcher.Constraint("Symmetric", 18, 3, 58, 3, -1, 1))
sketch3.addConstraint(Sketcher.Constraint("Symmetric", 19, 3, 59, 3, -1, 1))
sketch3.addConstraint(Sketcher.Constraint("Symmetric", 20, 3, 60, 3, -1, 1))
sketch3.addConstraint(Sketcher.Constraint("Symmetric", 21, 3, 61, 3, -1, 1))
sketch3.addConstraint(Sketcher.Constraint("Symmetric", 22, 3, 62, 3, -1, 1))
sketch3.addConstraint(Sketcher.Constraint("Symmetric", 23, 3, 63, 3, -1, 1))
sketch3.addConstraint(Sketcher.Constraint("Symmetric", 24, 3, 64, 3, -1, 1))
sketch3.addConstraint(Sketcher.Constraint("Symmetric", 25, 3, 65, 3, -1, 1))
sketch3.addConstraint(Sketcher.Constraint("Symmetric", 26, 3, 66, 3, -1, 1))
sketch3.addConstraint(Sketcher.Constraint("Symmetric", 27, 3, 67, 3, -1, 1))
sketch3.addConstraint(Sketcher.Constraint("Symmetric", 28, 3, 68, 3, -1, 1))
sketch3.addConstraint(Sketcher.Constraint("Symmetric", 29, 3, 69, 3, -1, 1))
sketch3.addConstraint(Sketcher.Constraint("Symmetric", 30, 3, 70, 3, -1, 1))
sketch3.addConstraint(Sketcher.Constraint("Symmetric", 31, 3, 71, 3, -1, 1))
sketch3.addConstraint(Sketcher.Constraint("Symmetric", 32, 3, 72, 3, -1, 1))
sketch3.addConstraint(Sketcher.Constraint("Symmetric", 33, 3, 73, 3, -1, 1))
sketch3.addConstraint(Sketcher.Constraint("Symmetric", 34, 3, 74, 3, -1, 1))
sketch3.addConstraint(Sketcher.Constraint("Symmetric", 35, 3, 75, 3, -1, 1))
sketch3.addConstraint(Sketcher.Constraint("Symmetric", 36, 3, 76, 3, -1, 1))
sketch3.addConstraint(Sketcher.Constraint("Symmetric", 37, 3, 77, 3, -1, 1))
sketch3.addConstraint(Sketcher.Constraint("Symmetric", 38, 3, 78, 3, -1, 1))
sketch3.addConstraint(Sketcher.Constraint("Symmetric", 39, 3, 79, 3, -1, 1))
sketch3.addConstraint(Sketcher.Constraint("Symmetric", 32, 3, 52, 3, -2))
sketch3.addConstraint(Sketcher.Constraint("Symmetric", 37, 3, 57, 3, -2))
sketch3.addConstraint(Sketcher.Constraint("PointOnObject", 2, 3, -2))
sketch3.addConstraint(Sketcher.Constraint("PointOnObject", 7, 3, -2))
sketch3.addConstraint(Sketcher.Constraint("PointOnObject", 22, 3, -1))
sketch3.addConstraint(Sketcher.Constraint("PointOnObject", 27, 3, -1))
sketch3.addConstraint(Sketcher.Constraint("Diameter", 0, 5.3))
sketch3.addConstraint(Sketcher.Constraint("Diameter", 1, 6.5))
sketch3.addConstraint(Sketcher.Constraint("Diameter", 2, 10.3))
sketch3.addConstraint(Sketcher.Constraint("DistanceY", -1, 1, 2, 3, 150.0))
sketch3.addConstraint(Sketcher.Constraint("DistanceY", -1, 1, 7, 3, 115.0))
sketch3.addConstraint(Sketcher.Constraint("DistanceX", -1, 1, 22, 3, 150.0))
sketch3.addConstraint(Sketcher.Constraint("DistanceX", -1, 1, 27, 3, 115.0))
sketch3.addConstraint(Sketcher.Constraint("DistanceY", -1, 1, 5, 3, 109.371499))
sketch3.addConstraint(Sketcher.Constraint("DistanceX", -1, 1, 25, 3, 109.371499))
sketch3.addConstraint(Sketcher.Constraint("DistanceX", 0, 3, -1, 1, 46.352549))
sketch3.addConstraint(Sketcher.Constraint("DistanceX", 1, 3, -1, 1, 23.46517))
sketch3.addConstraint(Sketcher.Constraint("DistanceY", -1, 1, 1, 3, 148.153251))
sketch3.addConstraint(Sketcher.Constraint("DistanceY", -1, 1, 6, 3, 113.584159))
sketch3.addConstraint(Sketcher.Constraint("DistanceX", -1, 1, 8, 3, 19.96954))
sketch3.addConstraint(Sketcher.Constraint("DistanceY", -1, 1, 8, 3, 113.252892))
sketch3.addConstraint(Sketcher.Constraint("DistanceY", -1, 1, 10, 3, 133.650979))
sketch3.addConstraint(Sketcher.Constraint("DistanceY", -1, 1, 11, 3, 121.352549))
sketch3.addConstraint(Sketcher.Constraint("DistanceX", -1, 1, 14, 3, 132.442139))
sketch3.addConstraint(Sketcher.Constraint("DistanceY", -1, 1, 15, 3, 102.46575))
sketch3.addConstraint(Sketcher.Constraint("DistanceX", -1, 1, 17, 3, 81.31728))
sketch3.addConstraint(Sketcher.Constraint("DistanceY", -1, 1, 17, 3, 81.31728))
sketch3.addConstraint(Sketcher.Constraint("DistanceY", -1, 1, 18, 3, 65.96129))
sketch3.addConstraint(Sketcher.Constraint("DistanceY", -1, 1, 19, 3, 53.98923))
sketch3.addConstraint(Sketcher.Constraint("DistanceY", -1, 1, 20, 3, 46.352549))
sketch3.addConstraint(Sketcher.Constraint("DistanceX", -1, 1, 21, 3, 148.153251))
sketch3.addConstraint(Sketcher.Constraint("DistanceY", -1, 1, 21, 3, 23.46517))
sketch3.addConstraint(Sketcher.Constraint("DistanceX", -1, 1, 26, 3, 113.584159))
sketch3.addConstraint(Sketcher.Constraint("DistanceX", -1, 1, 28, 3, 113.252892))
sketch3.addConstraint(Sketcher.Constraint("DistanceY", 28, 3, -1, 1, 19.96954))
sketch3.addConstraint(Sketcher.Constraint("DistanceX", -1, 1, 30, 3, 133.650979))
sketch3.addConstraint(Sketcher.Constraint("DistanceX", -1, 1, 31, 3, 121.352549))
sketch3.addConstraint(Sketcher.Constraint("DistanceY", 34, 3, -1, 1, 132.442139))
sketch3.addConstraint(Sketcher.Constraint("DistanceX", -1, 1, 35, 3, 102.46575))
sketch3.addConstraint(Sketcher.Constraint("DistanceX", -1, 1, 38, 3, 65.96129))
sketch3.addConstraint(Sketcher.Constraint("DistanceX", -1, 1, 39, 3, 53.98923))
sketch3.addConstraint(Sketcher.Constraint("DistanceY", -1, 1, 0, 3, 142.658477))
sketch3.addConstraint(Sketcher.Constraint("DistanceX", -1, 1, 3, 3, 26.047227))
sketch3.addConstraint(Sketcher.Constraint("DistanceY", -1, 1, 3, 3, 147.721163))
sketch3.addConstraint(Sketcher.Constraint("DistanceX", -1, 1, 4, 3, 43.855756))
sketch3.addConstraint(Sketcher.Constraint("DistanceY", -1, 1, 4, 3, 143.445713))
sketch3.addConstraint(Sketcher.Constraint("DistanceX", 5, 3, -1, 1, 35.536954))
sketch3.addConstraint(Sketcher.Constraint("DistanceX", 6, 3, -1, 1, 17.989963))
sketch3.addConstraint(Sketcher.Constraint("DistanceX", -1, 1, 9, 3, 33.622746))
sketch3.addConstraint(Sketcher.Constraint("DistanceY", -1, 1, 9, 3, 109.975047))
sketch3.addConstraint(Sketcher.Constraint("DistanceX", -1, 1, 10, 3, 68.098575))
sketch3.addConstraint(Sketcher.Constraint("DistanceX", -1, 1, 11, 3, 88.167788))
sketch3.addConstraint(Sketcher.Constraint("DistanceX", -1, 1, 12, 3, 106.066017))
sketch3.addConstraint(Sketcher.Constraint("DistanceY", -1, 1, 12, 3, 106.066017))
sketch3.addConstraint(Sketcher.Constraint("DistanceX", -1, 1, 13, 3, 122.872807))
sketch3.addConstraint(Sketcher.Constraint("DistanceY", -1, 1, 13, 3, 86.036465))
sketch3.addConstraint(Sketcher.Constraint("DistanceY", -1, 1, 14, 3, 70.420734))
sketch3.addConstraint(Sketcher.Constraint("DistanceX", -1, 1, 15, 3, 52.208907))
sketch3.addConstraint(Sketcher.Constraint("DistanceX", -1, 1, 16, 3, 67.595304))
sketch3.addConstraint(Sketcher.Constraint("DistanceY", -1, 1, 16, 3, 93.036954))
sketch3.addConstraint(Sketcher.Constraint("DistanceX", -1, 1, 18, 3, 94.202485))
sketch3.addConstraint(Sketcher.Constraint("DistanceX", -1, 1, 19, 3, 101.538973))
sketch3.addConstraint(Sketcher.Constraint("DistanceX", -1, 1, 20, 3, 142.658477))
sketch3.addConstraint(Sketcher.Constraint("DistanceX", -1, 1, 23, 3, 147.721163))
sketch3.addConstraint(Sketcher.Constraint("DistanceY", 23, 3, -1, 1, 26.047227))
sketch3.addConstraint(Sketcher.Constraint("DistanceX", -1, 1, 24, 3, 143.445713))
sketch3.addConstraint(Sketcher.Constraint("DistanceY", 24, 3, -1, 1, 43.855756))
sketch3.addConstraint(Sketcher.Constraint("DistanceY", -1, 1, 25, 3, 35.536954))
sketch3.addConstraint(Sketcher.Constraint("DistanceY", -1, 1, 26, 3, 17.989963))
sketch3.addConstraint(Sketcher.Constraint("DistanceX", -1, 1, 29, 3, 109.975047))
sketch3.addConstraint(Sketcher.Constraint("DistanceY", 29, 3, -1, 1, 33.622746))
sketch3.addConstraint(Sketcher.Constraint("DistanceY", 30, 3, -1, 1, 68.098575))
sketch3.addConstraint(Sketcher.Constraint("DistanceY", 31, 3, -1, 1, 88.167788))
sketch3.addConstraint(Sketcher.Constraint("DistanceX", -1, 1, 33, 3, 86.036465))
sketch3.addConstraint(Sketcher.Constraint("DistanceY", 33, 3, -1, 1, 122.872807))
sketch3.addConstraint(Sketcher.Constraint("DistanceX", -1, 1, 34, 3, 70.420734))
sketch3.addConstraint(Sketcher.Constraint("DistanceY", 35, 3, -1, 1, 52.208907))
sketch3.addConstraint(Sketcher.Constraint("DistanceX", -1, 1, 36, 3, 93.036954))
sketch3.addConstraint(Sketcher.Constraint("DistanceY", 36, 3, -1, 1, 67.595304))
sketch3.addConstraint(Sketcher.Constraint("DistanceY", 38, 3, -1, 1, 94.202485))
sketch3.addConstraint(Sketcher.Constraint("DistanceY", 39, 3, -1, 1, 101.538973))
pocket2 = body.newObject("PartDesign::Pocket", "Pocket001")
pocket2.Profile = sketch3
pocket2.Length = 2.05

sketch4 = body.newObject("Sketcher::SketchObject", "Sketch003")
sketch4.AttachmentSupport = (doc.getObject("XY_Plane"), [""])
sketch4.MapMode = "FlatFace"
sketch4.AttachmentOffset = App.Placement(App.Vector(0, 0, 2.05), App.Rotation())
sketch4.addGeometry(Part.LineSegment(App.Vector(-26, 58, 0), App.Vector(23, 58, 0)), False)
sketch4.addGeometry(Part.LineSegment(App.Vector(23, 58, 0), App.Vector(23, 87, 0)), False)
sketch4.addGeometry(Part.ArcOfCircle(Part.Circle(App.Vector(0, 0, 0), App.Vector(0, 0, 1), 90), math.radians(75), math.radians(107)), False)
sketch4.addGeometry(Part.LineSegment(App.Vector(-26, 86, 0), App.Vector(-26, 58, 0)), False)
sketch4.addGeometry(Part.LineSegment(App.Vector(37, 51, 0), App.Vector(62, 9, 0)), False)
sketch4.addGeometry(Part.LineSegment(App.Vector(62, 9, 0), App.Vector(87, 23, 0)), False)
sketch4.addGeometry(Part.ArcOfCircle(Part.Circle(App.Vector(0, 0, 0), App.Vector(0, 0, 1), 90), math.radians(15), math.radians(47)), False)
sketch4.addGeometry(Part.LineSegment(App.Vector(62, 65, 0), App.Vector(37, 51, 0)), False)
sketch4.addGeometry(Part.LineSegment(App.Vector(63, -7, 0), App.Vector(38, -49, 0)), False)
sketch4.addGeometry(Part.LineSegment(App.Vector(38, -49, 0), App.Vector(64, -64, 0)), False)
sketch4.addGeometry(Part.ArcOfCircle(Part.Circle(App.Vector(0, 0, 0), App.Vector(0, 0, 1), 90), math.radians(-45), math.radians(-13)), False)
sketch4.addGeometry(Part.LineSegment(App.Vector(88, -21, 0), App.Vector(63, -7, 0)), False)
sketch4.addGeometry(Part.LineSegment(App.Vector(26, -58, 0), App.Vector(-23, -58, 0)), False)
sketch4.addGeometry(Part.LineSegment(App.Vector(-23, -58, 0), App.Vector(-23, -87, 0)), False)
sketch4.addGeometry(Part.ArcOfCircle(Part.Circle(App.Vector(0, 0, 0), App.Vector(0, 0, 1), 90), math.radians(-105), math.radians(-73)), False)
sketch4.addGeometry(Part.LineSegment(App.Vector(26, -86, 0), App.Vector(26, -58, 0)), False)
sketch4.addGeometry(Part.LineSegment(App.Vector(-37, -51, 0), App.Vector(-62, -9, 0)), False)
sketch4.addGeometry(Part.LineSegment(App.Vector(-62, -9, 0), App.Vector(-87, -23, 0)), False)
sketch4.addGeometry(Part.ArcOfCircle(Part.Circle(App.Vector(0, 0, 0), App.Vector(0, 0, 1), 90), math.radians(-165), math.radians(-133)), False)
sketch4.addGeometry(Part.LineSegment(App.Vector(-62, -65, 0), App.Vector(-37, -51, 0)), False)
sketch4.addGeometry(Part.LineSegment(App.Vector(-63, 7, 0), App.Vector(-38, 49, 0)), False)
sketch4.addGeometry(Part.LineSegment(App.Vector(-38, 49, 0), App.Vector(-64, 64, 0)), False)
sketch4.addGeometry(Part.ArcOfCircle(Part.Circle(App.Vector(0, 0, 0), App.Vector(0, 0, 1), 90), math.radians(135), math.radians(167)), False)
sketch4.addGeometry(Part.LineSegment(App.Vector(-88, 21, 0), App.Vector(-63, 7, 0)), False)
sketch4.addConstraint(Sketcher.Constraint("Coincident", 0, 2, 1, 1))
sketch4.addConstraint(Sketcher.Constraint("Coincident", 1, 2, 2, 1))
sketch4.addConstraint(Sketcher.Constraint("Coincident", 2, 2, 3, 1))
sketch4.addConstraint(Sketcher.Constraint("Coincident", 3, 2, 0, 1))
sketch4.addConstraint(Sketcher.Constraint("Coincident", 4, 2, 5, 1))
sketch4.addConstraint(Sketcher.Constraint("Coincident", 5, 2, 6, 1))
sketch4.addConstraint(Sketcher.Constraint("Coincident", 6, 2, 7, 1))
sketch4.addConstraint(Sketcher.Constraint("Coincident", 7, 2, 4, 1))
sketch4.addConstraint(Sketcher.Constraint("Coincident", 8, 2, 9, 1))
sketch4.addConstraint(Sketcher.Constraint("Coincident", 9, 2, 10, 1))
sketch4.addConstraint(Sketcher.Constraint("Coincident", 10, 2, 11, 1))
sketch4.addConstraint(Sketcher.Constraint("Coincident", 11, 2, 8, 1))
sketch4.addConstraint(Sketcher.Constraint("Coincident", 12, 2, 13, 1))
sketch4.addConstraint(Sketcher.Constraint("Coincident", 13, 2, 14, 1))
sketch4.addConstraint(Sketcher.Constraint("Coincident", 14, 2, 15, 1))
sketch4.addConstraint(Sketcher.Constraint("Coincident", 15, 2, 12, 1))
sketch4.addConstraint(Sketcher.Constraint("Coincident", 16, 2, 17, 1))
sketch4.addConstraint(Sketcher.Constraint("Coincident", 17, 2, 18, 1))
sketch4.addConstraint(Sketcher.Constraint("Coincident", 18, 2, 19, 1))
sketch4.addConstraint(Sketcher.Constraint("Coincident", 19, 2, 16, 1))
sketch4.addConstraint(Sketcher.Constraint("Coincident", 20, 2, 21, 1))
sketch4.addConstraint(Sketcher.Constraint("Coincident", 21, 2, 22, 1))
sketch4.addConstraint(Sketcher.Constraint("Coincident", 22, 2, 23, 1))
sketch4.addConstraint(Sketcher.Constraint("Coincident", 23, 2, 20, 1))
sketch4.addConstraint(Sketcher.Constraint("Horizontal", 0))
sketch4.addConstraint(Sketcher.Constraint("Vertical", 1))
sketch4.addConstraint(Sketcher.Constraint("Vertical", 3))
sketch4.addConstraint(Sketcher.Constraint("Horizontal", 12))
sketch4.addConstraint(Sketcher.Constraint("Vertical", 13))
sketch4.addConstraint(Sketcher.Constraint("Vertical", 15))
sketch4.addConstraint(Sketcher.Constraint("Coincident", 2, 3, -1, 1))
sketch4.addConstraint(Sketcher.Constraint("Coincident", 6, 3, -1, 1))
sketch4.addConstraint(Sketcher.Constraint("Coincident", 10, 3, -1, 1))
sketch4.addConstraint(Sketcher.Constraint("Coincident", 14, 3, -1, 1))
sketch4.addConstraint(Sketcher.Constraint("Coincident", 18, 3, -1, 1))
sketch4.addConstraint(Sketcher.Constraint("Coincident", 22, 3, -1, 1))
sketch4.addConstraint(Sketcher.Constraint("Equal", 2, 6))
sketch4.addConstraint(Sketcher.Constraint("Equal", 6, 10))
sketch4.addConstraint(Sketcher.Constraint("Equal", 10, 14))
sketch4.addConstraint(Sketcher.Constraint("Equal", 14, 18))
sketch4.addConstraint(Sketcher.Constraint("Equal", 18, 22))
sketch4.addConstraint(Sketcher.Constraint("Symmetric", 0, 2, 12, 2, -1, 1))
sketch4.addConstraint(Sketcher.Constraint("Symmetric", 4, 2, 16, 2, -1, 1))
sketch4.addConstraint(Sketcher.Constraint("Symmetric", 7, 2, 19, 2, -1, 1))
sketch4.addConstraint(Sketcher.Constraint("Symmetric", 8, 2, 20, 2, -1, 1))
sketch4.addConstraint(Sketcher.Constraint("Symmetric", 11, 2, 23, 2, -1, 1))
sketch4.addConstraint(Sketcher.Constraint("Perpendicular", 4, 5))
sketch4.addConstraint(Sketcher.Constraint("Parallel", 5, 7))
sketch4.addConstraint(Sketcher.Constraint("Perpendicular", 8, 9))
sketch4.addConstraint(Sketcher.Constraint("Parallel", 9, 11))
sketch4.addConstraint(Sketcher.Constraint("Perpendicular", 16, 17))
sketch4.addConstraint(Sketcher.Constraint("Parallel", 17, 19))
sketch4.addConstraint(Sketcher.Constraint("Perpendicular", 20, 21))
sketch4.addConstraint(Sketcher.Constraint("Parallel", 21, 23))
sketch4.addConstraint(Sketcher.Constraint("Equal", 0, 12))
sketch4.addConstraint(Sketcher.Constraint("Equal", 4, 8))
sketch4.addConstraint(Sketcher.Constraint("Equal", 5, 9))
sketch4.addConstraint(Sketcher.Constraint("Equal", 7, 11))
sketch4.addConstraint(Sketcher.Constraint("Radius", 2, 90.0))
sketch4.addConstraint(Sketcher.Constraint("DistanceX", 0, 1, 0, 2, 49.0))
sketch4.addConstraint(Sketcher.Constraint("Angle", 4, Q("-60 deg")))
sketch4.addConstraint(Sketcher.Constraint("Angle", 8, Q("-120 deg")))
sketch4.addConstraint(Sketcher.Constraint("Distance", 4, 49.0))
sketch4.addConstraint(Sketcher.Constraint("DistanceY", 1, 1, 1, 2, 29.10159))
sketch4.addConstraint(Sketcher.Constraint("DistanceY", 7, 2, 1, 2, 35.768502))
sketch4.addConstraint(Sketcher.Constraint("DistanceY", 11, 2, 5, 2, 29.942399))
sketch4.addConstraint(Sketcher.Constraint("Distance", 5, 29.10159))
pocket3 = body.newObject("PartDesign::Pocket", "Pocket002")
pocket3.Profile = sketch4
pocket3.Length = 2.05

sketch5 = body.newObject("Sketcher::SketchObject", "Sketch004")
sketch5.AttachmentSupport = (doc.getObject("XY_Plane"), [""])
sketch5.MapMode = "FlatFace"
sketch5.AttachmentOffset = App.Placement(App.Vector(0, 0, 2.05), App.Rotation())
sketch5.addGeometry(Part.Circle(App.Vector(43, 74.5, 0), App.Vector(0, 0, 1), 3.2), False)
sketch5.addGeometry(Part.Circle(App.Vector(86, 0, 0), App.Vector(0, 0, 1), 3.2), False)
sketch5.addGeometry(Part.Circle(App.Vector(43, -74.5, 0), App.Vector(0, 0, 1), 3.2), False)
sketch5.addGeometry(Part.Circle(App.Vector(-43, -74.5, 0), App.Vector(0, 0, 1), 3.2), False)
sketch5.addGeometry(Part.Circle(App.Vector(-86, 0, 0), App.Vector(0, 0, 1), 3.2), False)
sketch5.addGeometry(Part.Circle(App.Vector(-43, 74.5, 0), App.Vector(0, 0, 1), 3.2), False)
sketch5.addConstraint(Sketcher.Constraint("Equal", 0, 1))
sketch5.addConstraint(Sketcher.Constraint("Equal", 1, 2))
sketch5.addConstraint(Sketcher.Constraint("Equal", 2, 3))
sketch5.addConstraint(Sketcher.Constraint("Equal", 3, 4))
sketch5.addConstraint(Sketcher.Constraint("Equal", 4, 5))
sketch5.addConstraint(Sketcher.Constraint("Symmetric", 0, 3, 3, 3, -1, 1))
sketch5.addConstraint(Sketcher.Constraint("Symmetric", 1, 3, 4, 3, -1, 1))
sketch5.addConstraint(Sketcher.Constraint("Symmetric", 2, 3, 5, 3, -1, 1))
sketch5.addConstraint(Sketcher.Constraint("Symmetric", 2, 3, 3, 3, -2))
sketch5.addConstraint(Sketcher.Constraint("PointOnObject", 1, 3, -1))
sketch5.addConstraint(Sketcher.Constraint("Diameter", 0, 6.5))
sketch5.addConstraint(Sketcher.Constraint("DistanceX", -1, 1, 0, 3, 43.0))
sketch5.addConstraint(Sketcher.Constraint("DistanceX", -1, 1, 1, 3, 86.0))
sketch5.addConstraint(Sketcher.Constraint("DistanceY", 2, 3, 0, 3, 148.956369))
pocket4 = body.newObject("PartDesign::Pocket", "Pocket003")
pocket4.Profile = sketch5
pocket4.Length = 2.05
doc.recompute()

fillet = body.newObject("PartDesign::Fillet", "Fillet")
fillet.Base = (pocket4, edges_at(pocket4, [
    (-25.688, 57.827, 1.025),
    (-25.688, 86.256, 1.025),
    (23.312, 86.928, 1.025),
    (23.312, 57.827, 1.025),
    (37.235, 51.16, 1.025),
    (61.856, 65.375, 1.025),
    (86.938, 23.275, 1.025),
    (61.735, 8.725, 1.025),
    (62.924, -6.667, 1.025),
    (87.544, -20.882, 1.025),
    (63.626, -63.653, 1.025),
    (38.424, -49.102, 1.025),
    (25.688, -57.827, 1.025),
    (25.688, -86.256, 1.025),
    (-23.312, -86.928, 1.025),
    (-23.312, -57.827, 1.025),
    (-37.235, -51.16, 1.025),
    (-61.856, -65.375, 1.025),
    (-86.938, -23.275, 1.025),
    (-61.735, -8.725, 1.025),
    (-62.924, 6.667, 1.025),
    (-87.544, 20.882, 1.025),
    (-63.626, 63.653, 1.025),
    (-38.424, 49.102, 1.025),
]))
fillet.Radius = 1

doc.recompute()
